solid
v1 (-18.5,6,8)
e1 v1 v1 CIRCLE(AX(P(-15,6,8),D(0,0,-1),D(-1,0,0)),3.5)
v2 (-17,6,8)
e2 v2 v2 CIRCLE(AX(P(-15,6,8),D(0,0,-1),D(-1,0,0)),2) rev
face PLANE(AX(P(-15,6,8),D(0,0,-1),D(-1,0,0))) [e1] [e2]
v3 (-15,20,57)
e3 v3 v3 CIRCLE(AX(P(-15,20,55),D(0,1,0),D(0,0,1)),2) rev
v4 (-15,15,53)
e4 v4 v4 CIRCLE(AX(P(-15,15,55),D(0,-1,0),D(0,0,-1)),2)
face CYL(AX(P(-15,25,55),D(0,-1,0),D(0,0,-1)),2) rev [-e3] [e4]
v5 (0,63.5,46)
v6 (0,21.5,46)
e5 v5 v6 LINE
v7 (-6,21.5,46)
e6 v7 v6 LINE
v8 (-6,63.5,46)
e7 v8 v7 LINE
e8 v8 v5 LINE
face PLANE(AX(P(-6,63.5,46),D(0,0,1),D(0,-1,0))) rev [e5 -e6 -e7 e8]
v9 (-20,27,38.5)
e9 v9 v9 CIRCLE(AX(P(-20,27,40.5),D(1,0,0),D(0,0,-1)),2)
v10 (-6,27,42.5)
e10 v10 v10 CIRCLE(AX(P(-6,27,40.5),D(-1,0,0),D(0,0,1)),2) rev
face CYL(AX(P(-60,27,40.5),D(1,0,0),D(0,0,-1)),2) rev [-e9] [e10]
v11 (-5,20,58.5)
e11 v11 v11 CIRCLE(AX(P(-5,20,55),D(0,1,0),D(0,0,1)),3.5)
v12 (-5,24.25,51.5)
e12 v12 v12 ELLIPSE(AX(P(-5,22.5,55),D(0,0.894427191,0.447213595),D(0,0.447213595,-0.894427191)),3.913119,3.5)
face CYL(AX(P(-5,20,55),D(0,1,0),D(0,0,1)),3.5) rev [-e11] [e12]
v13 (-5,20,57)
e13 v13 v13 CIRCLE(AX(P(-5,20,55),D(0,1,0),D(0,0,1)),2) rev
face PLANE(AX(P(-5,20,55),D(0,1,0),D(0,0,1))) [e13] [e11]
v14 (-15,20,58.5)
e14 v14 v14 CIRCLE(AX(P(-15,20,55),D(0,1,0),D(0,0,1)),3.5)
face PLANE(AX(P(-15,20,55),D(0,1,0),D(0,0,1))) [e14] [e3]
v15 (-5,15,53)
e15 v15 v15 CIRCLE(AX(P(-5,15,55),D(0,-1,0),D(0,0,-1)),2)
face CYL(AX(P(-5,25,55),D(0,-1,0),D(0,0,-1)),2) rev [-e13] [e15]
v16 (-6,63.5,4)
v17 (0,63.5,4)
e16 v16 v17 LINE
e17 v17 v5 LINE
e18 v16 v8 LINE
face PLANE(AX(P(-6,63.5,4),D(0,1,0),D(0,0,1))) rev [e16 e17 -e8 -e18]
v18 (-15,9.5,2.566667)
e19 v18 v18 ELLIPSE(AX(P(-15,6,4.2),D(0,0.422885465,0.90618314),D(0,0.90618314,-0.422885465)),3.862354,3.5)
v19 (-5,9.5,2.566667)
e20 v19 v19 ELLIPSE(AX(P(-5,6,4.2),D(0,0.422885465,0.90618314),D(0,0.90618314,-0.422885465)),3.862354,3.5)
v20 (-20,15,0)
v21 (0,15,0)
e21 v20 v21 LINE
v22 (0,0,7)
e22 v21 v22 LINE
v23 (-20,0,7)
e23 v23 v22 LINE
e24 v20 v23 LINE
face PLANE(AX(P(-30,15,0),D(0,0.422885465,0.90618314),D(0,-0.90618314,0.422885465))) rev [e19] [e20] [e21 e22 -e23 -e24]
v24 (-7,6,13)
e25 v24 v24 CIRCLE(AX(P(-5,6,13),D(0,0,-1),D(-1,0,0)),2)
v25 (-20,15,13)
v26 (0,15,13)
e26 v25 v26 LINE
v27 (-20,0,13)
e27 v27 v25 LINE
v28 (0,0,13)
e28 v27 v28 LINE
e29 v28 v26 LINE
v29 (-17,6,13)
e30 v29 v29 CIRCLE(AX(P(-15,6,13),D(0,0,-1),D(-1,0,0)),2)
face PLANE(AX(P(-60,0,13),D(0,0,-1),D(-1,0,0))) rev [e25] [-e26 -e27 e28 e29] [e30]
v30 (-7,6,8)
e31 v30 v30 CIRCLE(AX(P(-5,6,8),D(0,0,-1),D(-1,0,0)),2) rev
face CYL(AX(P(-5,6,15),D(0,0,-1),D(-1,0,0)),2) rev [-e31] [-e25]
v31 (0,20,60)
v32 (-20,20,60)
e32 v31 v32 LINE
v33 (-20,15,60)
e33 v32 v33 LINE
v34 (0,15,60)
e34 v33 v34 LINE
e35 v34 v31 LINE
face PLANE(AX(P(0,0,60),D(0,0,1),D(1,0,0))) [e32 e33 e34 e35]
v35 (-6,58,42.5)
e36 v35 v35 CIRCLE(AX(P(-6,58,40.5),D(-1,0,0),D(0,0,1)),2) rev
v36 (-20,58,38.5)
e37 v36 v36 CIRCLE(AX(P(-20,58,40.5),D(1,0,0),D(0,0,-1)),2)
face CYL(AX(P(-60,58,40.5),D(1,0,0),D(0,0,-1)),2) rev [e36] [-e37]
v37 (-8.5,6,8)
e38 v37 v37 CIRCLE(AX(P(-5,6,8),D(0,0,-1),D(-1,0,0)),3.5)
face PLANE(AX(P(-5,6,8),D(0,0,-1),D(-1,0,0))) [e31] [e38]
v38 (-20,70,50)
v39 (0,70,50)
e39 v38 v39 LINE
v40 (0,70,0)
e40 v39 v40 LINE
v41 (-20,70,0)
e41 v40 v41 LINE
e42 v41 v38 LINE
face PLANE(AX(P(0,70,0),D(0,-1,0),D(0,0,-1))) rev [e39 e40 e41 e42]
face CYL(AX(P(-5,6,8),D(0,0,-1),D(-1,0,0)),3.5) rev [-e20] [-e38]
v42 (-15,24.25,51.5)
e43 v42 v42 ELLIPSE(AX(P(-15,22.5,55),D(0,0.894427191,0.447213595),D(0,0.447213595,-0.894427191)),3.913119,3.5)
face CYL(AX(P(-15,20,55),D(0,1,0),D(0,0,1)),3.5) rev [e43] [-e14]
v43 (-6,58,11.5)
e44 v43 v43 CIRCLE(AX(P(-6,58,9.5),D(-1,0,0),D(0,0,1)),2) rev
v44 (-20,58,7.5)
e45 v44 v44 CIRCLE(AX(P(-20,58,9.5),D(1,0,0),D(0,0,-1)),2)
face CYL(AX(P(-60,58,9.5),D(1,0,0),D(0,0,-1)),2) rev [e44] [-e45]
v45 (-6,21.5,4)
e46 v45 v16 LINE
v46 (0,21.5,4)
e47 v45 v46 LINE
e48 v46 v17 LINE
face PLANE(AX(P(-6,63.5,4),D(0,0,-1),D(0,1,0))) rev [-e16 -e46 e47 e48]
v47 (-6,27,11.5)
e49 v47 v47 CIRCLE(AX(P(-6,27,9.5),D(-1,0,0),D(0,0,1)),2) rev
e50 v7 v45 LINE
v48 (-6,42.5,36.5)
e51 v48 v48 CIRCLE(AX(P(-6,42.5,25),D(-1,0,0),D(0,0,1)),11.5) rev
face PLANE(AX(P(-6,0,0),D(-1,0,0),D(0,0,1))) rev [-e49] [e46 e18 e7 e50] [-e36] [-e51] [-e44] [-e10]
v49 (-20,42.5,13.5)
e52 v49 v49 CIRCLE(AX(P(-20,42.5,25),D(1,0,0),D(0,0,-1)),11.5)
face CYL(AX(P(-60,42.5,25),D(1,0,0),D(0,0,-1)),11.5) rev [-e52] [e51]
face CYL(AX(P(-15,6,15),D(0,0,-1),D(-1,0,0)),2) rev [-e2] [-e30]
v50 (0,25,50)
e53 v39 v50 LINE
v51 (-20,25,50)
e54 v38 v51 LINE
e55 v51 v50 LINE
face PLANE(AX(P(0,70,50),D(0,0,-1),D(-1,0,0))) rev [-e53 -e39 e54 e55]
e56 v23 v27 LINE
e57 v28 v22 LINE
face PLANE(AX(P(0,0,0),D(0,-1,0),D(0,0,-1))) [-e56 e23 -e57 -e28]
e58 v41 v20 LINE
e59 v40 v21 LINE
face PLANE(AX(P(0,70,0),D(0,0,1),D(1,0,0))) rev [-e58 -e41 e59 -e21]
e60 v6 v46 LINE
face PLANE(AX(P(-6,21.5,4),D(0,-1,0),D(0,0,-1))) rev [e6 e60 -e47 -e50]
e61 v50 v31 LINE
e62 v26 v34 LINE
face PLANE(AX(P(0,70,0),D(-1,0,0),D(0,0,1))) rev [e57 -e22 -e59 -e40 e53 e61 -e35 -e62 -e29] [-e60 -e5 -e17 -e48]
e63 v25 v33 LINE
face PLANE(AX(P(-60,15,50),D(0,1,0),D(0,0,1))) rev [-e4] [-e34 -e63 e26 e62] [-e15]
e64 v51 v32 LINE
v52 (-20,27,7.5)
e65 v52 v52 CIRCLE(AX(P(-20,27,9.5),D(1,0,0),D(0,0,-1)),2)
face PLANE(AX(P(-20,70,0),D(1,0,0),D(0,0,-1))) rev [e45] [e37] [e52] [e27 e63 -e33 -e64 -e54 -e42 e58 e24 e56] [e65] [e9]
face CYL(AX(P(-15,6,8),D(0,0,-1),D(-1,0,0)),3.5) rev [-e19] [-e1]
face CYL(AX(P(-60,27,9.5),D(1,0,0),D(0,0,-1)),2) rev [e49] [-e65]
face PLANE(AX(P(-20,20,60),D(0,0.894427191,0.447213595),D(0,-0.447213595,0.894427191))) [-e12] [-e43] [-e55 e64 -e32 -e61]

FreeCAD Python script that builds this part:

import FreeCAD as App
import Part
import Sketcher
from FreeCAD import Vector

doc = App.newDocument("Part")
params = doc.addObject("Spreadsheet::Sheet", "Params")
for row, (alias, value) in enumerate([
    ("sketch1_width", "20 mm"),
    ("sketch1_height", "50 mm"),
    ("pad1_length", "70 mm"),
    ("sketch2_diameter", "4 mm"),
    ("sketch2_diameter2", "23 mm"),
    ("pocket1_length", "60 mm"),
    ("sketch3_width", "15 mm"),
    ("sketch3_height", "37 mm"),
    ("pocket2_length", "60 mm"),
    ("sketch4_diameter", "4 mm"),
    ("pocket3_length", "15 mm"),
    ("sketch5_width", "42 mm"),
    ("pocket4_length", "6 mm"),
    ("sketch6_width", "15 mm"),
    ("sketch6_height", "7 mm"),
    ("pocket5_length", "30 mm"),
    ("sketch7_width", "20 mm"),
    ("sketch7_height", "5 mm"),
    ("pad2_length", "10 mm"),
    ("sketch8_width", "5 mm"),
    ("sketch8_height", "10 mm"),
    ("pad3_length", "20 mm"),
    ("sketch9_diameter", "4 mm"),
    ("pocket6_length", "10 mm"),
    ("sketch10_diameter", "7 mm"),
    ("pocket7_length", "8 mm"),
    ("sketch11_diameter", "7 mm"),
    ("pocket8_length", "50 mm"),
], start=1):
    params.set(f"A{row}", alias)
    params.set(f"B{row}", "=" + value)
    params.setAlias(f"B{row}", alias)

body = doc.addObject("PartDesign::Body", "Body")

sketch1 = doc.addObject("Sketcher::SketchObject", "Sketch")
body.addObject(sketch1)
sketch1.AttachmentSupport = (doc.XZ_Plane, [""])
sketch1.MapMode = "FlatFace"
sketch1.addGeometry([
    Part.LineSegment(Vector(-20, 0, 0), Vector(-20, 50, 0)),
    Part.LineSegment(Vector(-20, 50, 0), Vector(0, 50, 0)),
    Part.LineSegment(Vector(0, 50, 0), Vector(0, 0, 0)),
    Part.LineSegment(Vector(0, 0, 0), Vector(-20, 0, 0)),
], False)
sketch1.addConstraint([
    Sketcher.Constraint("Coincident", 0, 2, 1, 1),
    Sketcher.Constraint("Coincident", 1, 2, 2, 1),
    Sketcher.Constraint("Coincident", 2, 2, 3, 1),
    Sketcher.Constraint("Coincident", 3, 2, 0, 1),
    Sketcher.Constraint("Vertical", 0),
    Sketcher.Constraint("Horizontal", 1),
    Sketcher.Constraint("Vertical", 2),
    Sketcher.Constraint("Horizontal", 3),
    Sketcher.Constraint("Coincident", 2, 2, -1, 1),
    Sketcher.Constraint("DistanceX", 1, 1, 1, 2, 20.0),
    Sketcher.Constraint("DistanceY", 0, 1, 0, 2, 50.0),
])
sketch1.setExpression("Constraints[9]", "Params.sketch1_width")
sketch1.setExpression("Constraints[10]", "Params.sketch1_height")
pad1 = doc.addObject("PartDesign::Pad", "Pad")
body.addObject(pad1)
pad1.Profile = sketch1
pad1.setExpression("Length", "Params.pad1_length")
pad1.Reversed = True

sketch2 = doc.addObject("Sketcher::SketchObject", "Sketch001")
body.addObject(sketch2)
sketch2.AttachmentSupport = (doc.YZ_Plane, [""])
sketch2.MapMode = "FlatFace"
sketch2.addGeometry([
    Part.Circle(Vector(58, 9.5, 0), Vector(0, 0, 1), 2),
    Part.Circle(Vector(42.5, 25, 0), Vector(0, 0, 1), 11.5),
    Part.Circle(Vector(27, 9.5, 0), Vector(0, 0, 1), 2),
    Part.Circle(Vector(27, 40.5, 0), Vector(0, 0, 1), 2),
    Part.Circle(Vector(58, 40.5, 0), Vector(0, 0, 1), 2),
], False)
sketch2.addConstraint([
    Sketcher.Constraint("Equal", 0, 2),
    Sketcher.Constraint("Equal", 2, 3),
    Sketcher.Constraint("Equal", 3, 4),
    Sketcher.Constraint("Horizontal", 0, 3, 2, 3),
    Sketcher.Constraint("Horizontal", 3, 3, 4, 3),
    Sketcher.Constraint("Vertical", 2, 3, 3, 3),
    Sketcher.Constraint("Vertical", 0, 3, 4, 3),
    Sketcher.Constraint("Diameter", 0, 4.0),
    Sketcher.Constraint("Diameter", 1, 23.0),
    Sketcher.Constraint("DistanceX", -1, 1, 0, 3, 58.0),
    Sketcher.Constraint("DistanceY", -1, 1, 1, 3, 25.0),
    Sketcher.Constraint("DistanceX", -1, 1, 2, 3, 27.0),
    Sketcher.Constraint("DistanceY", 2, 3, 3, 3, 31.0),
    Sketcher.Constraint("DistanceY", -1, 1, 0, 3, 9.5),
    Sketcher.Constraint("DistanceX", -1, 1, 1, 3, 42.5),
])
sketch2.setExpression("Constraints[7]", "Params.sketch2_diameter")
sketch2.setExpression("Constraints[8]", "Params.sketch2_diameter2")
pocket1 = doc.addObject("PartDesign::Pocket", "Pocket")
body.addObject(pocket1)
pocket1.Profile = sketch2
pocket1.setExpression("Length", "Params.pocket1_length")

sketch3 = doc.addObject("Sketcher::SketchObject", "Sketch002")
body.addObject(sketch3)
sketch3.AttachmentSupport = (doc.YZ_Plane, [""])
sketch3.MapMode = "FlatFace"
sketch3.addGeometry([
    Part.LineSegment(Vector(15, 50, 0), Vector(0, 50, 0)),
    Part.LineSegment(Vector(0, 50, 0), Vector(0, 13, 0)),
    Part.LineSegment(Vector(0, 13, 0), Vector(15, 13, 0)),
    Part.LineSegment(Vector(15, 13, 0), Vector(15, 50, 0)),
], False)
sketch3.addConstraint([
    Sketcher.Constraint("Coincident", 0, 2, 1, 1),
    Sketcher.Constraint("Coincident", 1, 2, 2, 1),
    Sketcher.Constraint("Coincident", 2, 2, 3, 1),
    Sketcher.Constraint("Coincident", 3, 2, 0, 1),
    Sketcher.Constraint("Horizontal", 0),
    Sketcher.Constraint("Vertical", 1),
    Sketcher.Constraint("Horizontal", 2),
    Sketcher.Constraint("Vertical", 3),
    Sketcher.Constraint("PointOnObject", 0, 2, -2),
    Sketcher.Constraint("DistanceX", 0, 2, 0, 1, 15.0),
    Sketcher.Constraint("DistanceY", 1, 2, 1, 1, 37.0),
    Sketcher.Constraint("DistanceY", -1, 1, 0, 2, 50.0),
])
sketch3.setExpression("Constraints[9]", "Params.sketch3_width")
sketch3.setExpression("Constraints[10]", "Params.sketch3_height")
pocket2 = doc.addObject("PartDesign::Pocket", "Pocket001")
body.addObject(pocket2)
pocket2.Profile = sketch3
pocket2.setExpression("Length", "Params.pocket2_length")

sketch4 = doc.addObject("Sketcher::SketchObject", "Sketch003")
body.addObject(sketch4)
sketch4.AttachmentSupport = (doc.XY_Plane, [""])
sketch4.MapMode = "FlatFace"
sketch4.addGeometry([
    Part.Circle(Vector(-15, 6, 0), Vector(0, 0, 1), 2),
    Part.Circle(Vector(-5, 6, 0), Vector(0, 0, 1), 2),
], False)
sketch4.addConstraint([
    Sketcher.Constraint("Equal", 0, 1),
    Sketcher.Constraint("Horizontal", 0, 3, 1, 3),
    Sketcher.Constraint("Diameter", 0, 4.0),
    Sketcher.Constraint("DistanceX", 0, 3, -1, 1, 15.0),
    Sketcher.Constraint("DistanceY", -1, 1, 0, 3, 6.0),
    Sketcher.Constraint("DistanceX", 1, 3, -1, 1, 5.0),
])
sketch4.setExpression("Constraints[2]", "Params.sketch4_diameter")
pocket3 = doc.addObject("PartDesign::Pocket", "Pocket002")
body.addObject(pocket3)
pocket3.Profile = sketch4
pocket3.setExpression("Length", "Params.pocket3_length")
pocket3.Reversed = True

sketch5 = doc.addObject("Sketcher::SketchObject", "Sketch004")
body.addObject(sketch5)
sketch5.AttachmentSupport = (doc.YZ_Plane, [""])
sketch5.MapMode = "FlatFace"
sketch5.addGeometry([
    Part.LineSegment(Vector(64, 46, 0), Vector(22, 46, 0)),
    Part.LineSegment(Vector(22, 46, 0), Vector(22, 4, 0)),
    Part.LineSegment(Vector(22, 4, 0), Vector(64, 4, 0)),
    Part.LineSegment(Vector(64, 4, 0), Vector(64, 46, 0)),
], False)
sketch5.addConstraint([
    Sketcher.Constraint("Coincident", 0, 2, 1, 1),
    Sketcher.Constraint("Coincident", 1, 2, 2, 1),
    Sketcher.Constraint("Coincident", 2, 2, 3, 1),
    Sketcher.Constraint("Coincident", 3, 2, 0, 1),
    Sketcher.Constraint("Horizontal", 0),
    Sketcher.Constraint("Vertical", 1),
    Sketcher.Constraint("Horizontal", 2),
    Sketcher.Constraint("Vertical", 3),
    Sketcher.Constraint("Equal", 2, 1),
    Sketcher.Constraint("DistanceX", 0, 2, 0, 1, 42.0),
    Sketcher.Constraint("DistanceY", -1, 1, 0, 2, 46.0),
    Sketcher.Constraint("DistanceX", -1, 1, 0, 2, 21.5),
])
sketch5.setExpression("Constraints[9]", "Params.sketch5_width")
pocket4 = doc.addObject("PartDesign::Pocket", "Pocket003")
body.addObject(pocket4)
pocket4.Profile = sketch5
pocket4.setExpression("Length", "Params.pocket4_length")

sketch6 = doc.addObject("Sketcher::SketchObject", "Sketch005")
body.addObject(sketch6)
sketch6.AttachmentSupport = (doc.YZ_Plane, [""])
sketch6.MapMode = "FlatFace"
sketch6.addGeometry([
    Part.LineSegment(Vector(0, 7, 0), Vector(0, 0, 0)),
    Part.LineSegment(Vector(0, 0, 0), Vector(15, 0, 0)),
    Part.LineSegment(Vector(15, 0, 0), Vector(0, 7, 0)),
], False)
sketch6.addConstraint([
    Sketcher.Constraint("Coincident", 0, 2, 1, 1),
    Sketcher.Constraint("Coincident", 1, 2, 2, 1),
    Sketcher.Constraint("Coincident", 2, 2, 0, 1),
    Sketcher.Constraint("Vertical", 0),
    Sketcher.Constraint("Horizontal", 1),
    Sketcher.Constraint("Coincident", 0, 2, -1, 1),
    Sketcher.Constraint("DistanceX", 1, 1, 1, 2, 15.0),
    Sketcher.Constraint("DistanceY", 0, 2, 0, 1, 7.0),
])
sketch6.setExpression("Constraints[6]", "Params.sketch6_width")
sketch6.setExpression("Constraints[7]", "Params.sketch6_height")
pocket5 = doc.addObject("PartDesign::Pocket", "Pocket004")
body.addObject(pocket5)
pocket5.Profile = sketch6
pocket5.setExpression("Length", "Params.pocket5_length")

sketch7 = doc.addObject("Sketcher::SketchObject", "Sketch006")
body.addObject(sketch7)
sketch7.AttachmentSupport = (doc.XY_Plane, [""])
sketch7.MapMode = "FlatFace"
sketch7.AttachmentOffset = App.Placement(Vector(0, 0, 50), App.Rotation())
sketch7.addGeometry([
    Part.LineSegment(Vector(-20, 20, 0), Vector(-20, 15, 0)),
    Part.LineSegment(Vector(-20, 15, 0), Vector(0, 15, 0)),
    Part.LineSegment(Vector(0, 15, 0), Vector(0, 20, 0)),
    Part.LineSegment(Vector(0, 20, 0), Vector(-20, 20, 0)),
], False)
sketch7.addConstraint([
    Sketcher.Constraint("Coincident", 0, 2, 1, 1),
    Sketcher.Constraint("Coincident", 1, 2, 2, 1),
    Sketcher.Constraint("Coincident", 2, 2, 3, 1),
    Sketcher.Constraint("Coincident", 3, 2, 0, 1),
    Sketcher.Constraint("Vertical", 0),
    Sketcher.Constraint("Horizontal", 1),
    Sketcher.Constraint("Vertical", 2),
    Sketcher.Constraint("Horizontal", 3),
    Sketcher.Constraint("PointOnObject", 1, 2, -2),
    Sketcher.Constraint("DistanceX", 1, 1, 1, 2, 20.0),
    Sketcher.Constraint("DistanceY", 0, 2, 0, 1, 5.0),
    Sketcher.Constraint("DistanceY", -1, 1, 0, 2, 15.0),
])
sketch7.setExpression("Constraints[9]", "Params.sketch7_width")
sketch7.setExpression("Constraints[10]", "Params.sketch7_height")
pad2 = doc.addObject("PartDesign::Pad", "Pad001")
body.addObject(pad2)
pad2.Profile = sketch7
pad2.setExpression("Length", "Params.pad2_length")

sketch8 = doc.addObject("Sketcher::SketchObject", "Sketch007")
body.addObject(sketch8)
sketch8.AttachmentSupport = (doc.YZ_Plane, [""])
sketch8.MapMode = "FlatFace"
sketch8.addGeometry([
    Part.LineSegment(Vector(20, 60, 0), Vector(20, 50, 0)),
    Part.LineSegment(Vector(20, 50, 0), Vector(25, 50, 0)),
    Part.LineSegment(Vector(25, 50, 0), Vector(20, 60, 0)),
], False)
sketch8.addConstraint([
    Sketcher.Constraint("Coincident", 0, 2, 1, 1),
    Sketcher.Constraint("Coincident", 1, 2, 2, 1),
    Sketcher.Constraint("Coincident", 2, 2, 0, 1),
    Sketcher.Constraint("Vertical", 0),
    Sketcher.Constraint("Horizontal", 1),
    Sketcher.Constraint("DistanceX", 1, 1, 1, 2, 5.0),
    Sketcher.Constraint("DistanceY", 0, 2, 0, 1, 10.0),
    Sketcher.Constraint("DistanceX", -1, 1, 0, 2, 20.0),
    Sketcher.Constraint("DistanceY", -1, 1, 0, 2, 50.0),
])
sketch8.setExpression("Constraints[5]", "Params.sketch8_width")
sketch8.setExpression("Constraints[6]", "Params.sketch8_height")
pad3 = doc.addObject("PartDesign::Pad", "Pad002")
body.addObject(pad3)
pad3.Profile = sketch8
pad3.setExpression("Length", "Params.pad3_length")
pad3.Reversed = True

sketch9 = doc.addObject("Sketcher::SketchObject", "Sketch008")
body.addObject(sketch9)
sketch9.AttachmentSupport = (doc.XZ_Plane, [""])
sketch9.MapMode = "FlatFace"
sketch9.AttachmentOffset = App.Placement(Vector(0, 0, -15), App.Rotation())
sketch9.addGeometry([
    Part.Circle(Vector(-5, 55, 0), Vector(0, 0, 1), 2),
    Part.Circle(Vector(-15, 55, 0), Vector(0, 0, 1), 2),
], False)
sketch9.addConstraint([
    Sketcher.Constraint("Equal", 0, 1),
    Sketcher.Constraint("Horizontal", 0, 3, 1, 3),
    Sketcher.Constraint("Diameter", 0, 4.0),
    Sketcher.Constraint("DistanceX", 0, 3, -1, 1, 5.0),
    Sketcher.Constraint("DistanceY", -1, 1, 0, 3, 55.0),
    Sketcher.Constraint("DistanceX", 1, 3, -1, 1, 15.0),
])
sketch9.setExpression("Constraints[2]", "Params.sketch9_diameter")
pocket6 = doc.addObject("PartDesign::Pocket", "Pocket005")
body.addObject(pocket6)
pocket6.Profile = sketch9
pocket6.setExpression("Length", "Params.pocket6_length")

sketch10 = doc.addObject("Sketcher::SketchObject", "Sketch009")
body.addObject(sketch10)
sketch10.AttachmentSupport = (doc.XY_Plane, [""])
sketch10.MapMode = "FlatFace"
sketch10.addGeometry([
    Part.Circle(Vector(-15, 6, 0), Vector(0, 0, 1), 3.5),
    Part.Circle(Vector(-5, 6, 0), Vector(0, 0, 1), 3.5),
], False)
sketch10.addConstraint([
    Sketcher.Constraint("Equal", 0, 1),
    Sketcher.Constraint("Horizontal", 0, 3, 1, 3),
    Sketcher.Constraint("Diameter", 0, 7.0),
    Sketcher.Constraint("DistanceX", 0, 3, -1, 1, 15.0),
    Sketcher.Constraint("DistanceY", -1, 1, 0, 3, 6.0),
    Sketcher.Constraint("DistanceX", 1, 3, -1, 1, 5.0),
])
sketch10.setExpression("Constraints[2]", "Params.sketch10_diameter")
pocket7 = doc.addObject("PartDesign::Pocket", "Pocket006")
body.addObject(pocket7)
pocket7.Profile = sketch10
pocket7.setExpression("Length", "Params.pocket7_length")
pocket7.Reversed = True

sketch11 = doc.addObject("Sketcher::SketchObject", "Sketch010")
body.addObject(sketch11)
sketch11.AttachmentSupport = (doc.XZ_Plane, [""])
sketch11.MapMode = "FlatFace"
sketch11.AttachmentOffset = App.Placement(Vector(0, 0, -70), App.Rotation())
sketch11.addGeometry([
    Part.Circle(Vector(-15, 55, 0), Vector(0, 0, 1), 3.5),
    Part.Circle(Vector(-5, 55, 0), Vector(0, 0, 1), 3.5),
], False)
sketch11.addConstraint([
    Sketcher.Constraint("Equal", 0, 1),
    Sketcher.Constraint("Horizontal", 0, 3, 1, 3),
    Sketcher.Constraint("Diameter", 0, 7.0),
    Sketcher.Constraint("DistanceX", 0, 3, -1, 1, 15.0),
    Sketcher.Constraint("DistanceY", -1, 1, 0, 3, 55.0),
    Sketcher.Constraint("DistanceX", 1, 3, -1, 1, 5.0),
])
sketch11.setExpression("Constraints[2]", "Params.sketch11_diameter")
pocket8 = doc.addObject("PartDesign::Pocket", "Pocket007")
body.addObject(pocket8)
pocket8.Profile = sketch11
pocket8.setExpression("Length", "Params.pocket8_length")
pocket8.Reversed = True

doc.recompute()
